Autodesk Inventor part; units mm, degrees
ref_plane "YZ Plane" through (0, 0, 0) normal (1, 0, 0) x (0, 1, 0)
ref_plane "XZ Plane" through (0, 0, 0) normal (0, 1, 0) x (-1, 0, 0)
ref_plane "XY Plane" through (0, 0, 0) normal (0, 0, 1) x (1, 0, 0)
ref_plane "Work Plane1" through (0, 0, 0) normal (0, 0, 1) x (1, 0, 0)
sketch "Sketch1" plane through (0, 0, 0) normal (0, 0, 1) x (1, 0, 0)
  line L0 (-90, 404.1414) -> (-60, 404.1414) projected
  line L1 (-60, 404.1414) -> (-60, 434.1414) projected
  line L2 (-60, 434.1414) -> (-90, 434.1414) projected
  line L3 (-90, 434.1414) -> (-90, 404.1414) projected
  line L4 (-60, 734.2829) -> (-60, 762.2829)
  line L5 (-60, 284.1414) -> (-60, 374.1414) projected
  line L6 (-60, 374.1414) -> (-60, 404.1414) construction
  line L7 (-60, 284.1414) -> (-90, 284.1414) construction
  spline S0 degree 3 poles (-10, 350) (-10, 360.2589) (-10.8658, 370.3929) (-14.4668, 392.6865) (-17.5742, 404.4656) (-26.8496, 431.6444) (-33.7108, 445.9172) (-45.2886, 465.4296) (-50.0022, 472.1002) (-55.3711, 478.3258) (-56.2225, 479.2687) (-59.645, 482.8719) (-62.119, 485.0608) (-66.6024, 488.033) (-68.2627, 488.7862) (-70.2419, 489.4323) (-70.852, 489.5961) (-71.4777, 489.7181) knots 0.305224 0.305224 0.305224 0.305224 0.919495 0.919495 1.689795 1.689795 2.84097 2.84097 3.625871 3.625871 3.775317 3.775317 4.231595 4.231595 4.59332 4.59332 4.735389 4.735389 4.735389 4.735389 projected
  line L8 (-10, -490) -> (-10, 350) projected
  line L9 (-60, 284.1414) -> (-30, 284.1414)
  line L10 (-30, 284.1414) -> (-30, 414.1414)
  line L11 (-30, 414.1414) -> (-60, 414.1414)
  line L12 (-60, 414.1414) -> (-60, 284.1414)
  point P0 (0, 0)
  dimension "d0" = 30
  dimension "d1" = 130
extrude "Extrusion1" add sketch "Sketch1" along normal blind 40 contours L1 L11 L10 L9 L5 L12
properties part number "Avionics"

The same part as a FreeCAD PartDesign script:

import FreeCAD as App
import Part
import Sketcher
from FreeCAD import Vector
Q = App.Units.Quantity

doc = App.newDocument("Part")
body = doc.addObject("PartDesign::Body", "Body")

# Sketch on XY plane
sketch1 = body.newObject("Sketcher::SketchObject", "Sketch")
sketch1.AttachmentSupport = (doc.getObject("XY_Plane"), [""])
sketch1.MapMode = "FlatFace"
sketch1.addGeometry([
    Part.LineSegment(Vector(-60, 414.1414, 0), Vector(-60, 284.1414, 0)),
    Part.LineSegment(Vector(-60, 284.1414, 0), Vector(-30, 284.1414, 0)),
    Part.LineSegment(Vector(-30, 284.1414, 0), Vector(-30, 414.1414, 0)),
    Part.LineSegment(Vector(-30, 414.1414, 0), Vector(-60, 414.1414, 0)),
], False)
sketch1.addConstraint([
    Sketcher.Constraint("Coincident", 0, 2, 1, 1),
    Sketcher.Constraint("Coincident", 1, 2, 2, 1),
    Sketcher.Constraint("Coincident", 2, 2, 3, 1),
    Sketcher.Constraint("Coincident", 3, 2, 0, 1),
    Sketcher.Constraint("Vertical", 0),
    Sketcher.Constraint("Horizontal", 1),
    Sketcher.Constraint("Vertical", 2),
    Sketcher.Constraint("Horizontal", 3),
    Sketcher.Constraint("DistanceX", 1, 1, 1, 2, Q("30 mm")),
    Sketcher.Constraint("DistanceY", 0, 2, 0, 1, Q("130 mm")),
    Sketcher.Constraint("DistanceX", 1, 2, -1, 1, Q("30 mm")),
    Sketcher.Constraint("DistanceY", -1, 1, 0, 2, Q("284.1414 mm")),
])
pad1 = body.newObject("PartDesign::Pad", "Pad")
pad1.Profile = sketch1
pad1.Length = 40

doc.recompute()
